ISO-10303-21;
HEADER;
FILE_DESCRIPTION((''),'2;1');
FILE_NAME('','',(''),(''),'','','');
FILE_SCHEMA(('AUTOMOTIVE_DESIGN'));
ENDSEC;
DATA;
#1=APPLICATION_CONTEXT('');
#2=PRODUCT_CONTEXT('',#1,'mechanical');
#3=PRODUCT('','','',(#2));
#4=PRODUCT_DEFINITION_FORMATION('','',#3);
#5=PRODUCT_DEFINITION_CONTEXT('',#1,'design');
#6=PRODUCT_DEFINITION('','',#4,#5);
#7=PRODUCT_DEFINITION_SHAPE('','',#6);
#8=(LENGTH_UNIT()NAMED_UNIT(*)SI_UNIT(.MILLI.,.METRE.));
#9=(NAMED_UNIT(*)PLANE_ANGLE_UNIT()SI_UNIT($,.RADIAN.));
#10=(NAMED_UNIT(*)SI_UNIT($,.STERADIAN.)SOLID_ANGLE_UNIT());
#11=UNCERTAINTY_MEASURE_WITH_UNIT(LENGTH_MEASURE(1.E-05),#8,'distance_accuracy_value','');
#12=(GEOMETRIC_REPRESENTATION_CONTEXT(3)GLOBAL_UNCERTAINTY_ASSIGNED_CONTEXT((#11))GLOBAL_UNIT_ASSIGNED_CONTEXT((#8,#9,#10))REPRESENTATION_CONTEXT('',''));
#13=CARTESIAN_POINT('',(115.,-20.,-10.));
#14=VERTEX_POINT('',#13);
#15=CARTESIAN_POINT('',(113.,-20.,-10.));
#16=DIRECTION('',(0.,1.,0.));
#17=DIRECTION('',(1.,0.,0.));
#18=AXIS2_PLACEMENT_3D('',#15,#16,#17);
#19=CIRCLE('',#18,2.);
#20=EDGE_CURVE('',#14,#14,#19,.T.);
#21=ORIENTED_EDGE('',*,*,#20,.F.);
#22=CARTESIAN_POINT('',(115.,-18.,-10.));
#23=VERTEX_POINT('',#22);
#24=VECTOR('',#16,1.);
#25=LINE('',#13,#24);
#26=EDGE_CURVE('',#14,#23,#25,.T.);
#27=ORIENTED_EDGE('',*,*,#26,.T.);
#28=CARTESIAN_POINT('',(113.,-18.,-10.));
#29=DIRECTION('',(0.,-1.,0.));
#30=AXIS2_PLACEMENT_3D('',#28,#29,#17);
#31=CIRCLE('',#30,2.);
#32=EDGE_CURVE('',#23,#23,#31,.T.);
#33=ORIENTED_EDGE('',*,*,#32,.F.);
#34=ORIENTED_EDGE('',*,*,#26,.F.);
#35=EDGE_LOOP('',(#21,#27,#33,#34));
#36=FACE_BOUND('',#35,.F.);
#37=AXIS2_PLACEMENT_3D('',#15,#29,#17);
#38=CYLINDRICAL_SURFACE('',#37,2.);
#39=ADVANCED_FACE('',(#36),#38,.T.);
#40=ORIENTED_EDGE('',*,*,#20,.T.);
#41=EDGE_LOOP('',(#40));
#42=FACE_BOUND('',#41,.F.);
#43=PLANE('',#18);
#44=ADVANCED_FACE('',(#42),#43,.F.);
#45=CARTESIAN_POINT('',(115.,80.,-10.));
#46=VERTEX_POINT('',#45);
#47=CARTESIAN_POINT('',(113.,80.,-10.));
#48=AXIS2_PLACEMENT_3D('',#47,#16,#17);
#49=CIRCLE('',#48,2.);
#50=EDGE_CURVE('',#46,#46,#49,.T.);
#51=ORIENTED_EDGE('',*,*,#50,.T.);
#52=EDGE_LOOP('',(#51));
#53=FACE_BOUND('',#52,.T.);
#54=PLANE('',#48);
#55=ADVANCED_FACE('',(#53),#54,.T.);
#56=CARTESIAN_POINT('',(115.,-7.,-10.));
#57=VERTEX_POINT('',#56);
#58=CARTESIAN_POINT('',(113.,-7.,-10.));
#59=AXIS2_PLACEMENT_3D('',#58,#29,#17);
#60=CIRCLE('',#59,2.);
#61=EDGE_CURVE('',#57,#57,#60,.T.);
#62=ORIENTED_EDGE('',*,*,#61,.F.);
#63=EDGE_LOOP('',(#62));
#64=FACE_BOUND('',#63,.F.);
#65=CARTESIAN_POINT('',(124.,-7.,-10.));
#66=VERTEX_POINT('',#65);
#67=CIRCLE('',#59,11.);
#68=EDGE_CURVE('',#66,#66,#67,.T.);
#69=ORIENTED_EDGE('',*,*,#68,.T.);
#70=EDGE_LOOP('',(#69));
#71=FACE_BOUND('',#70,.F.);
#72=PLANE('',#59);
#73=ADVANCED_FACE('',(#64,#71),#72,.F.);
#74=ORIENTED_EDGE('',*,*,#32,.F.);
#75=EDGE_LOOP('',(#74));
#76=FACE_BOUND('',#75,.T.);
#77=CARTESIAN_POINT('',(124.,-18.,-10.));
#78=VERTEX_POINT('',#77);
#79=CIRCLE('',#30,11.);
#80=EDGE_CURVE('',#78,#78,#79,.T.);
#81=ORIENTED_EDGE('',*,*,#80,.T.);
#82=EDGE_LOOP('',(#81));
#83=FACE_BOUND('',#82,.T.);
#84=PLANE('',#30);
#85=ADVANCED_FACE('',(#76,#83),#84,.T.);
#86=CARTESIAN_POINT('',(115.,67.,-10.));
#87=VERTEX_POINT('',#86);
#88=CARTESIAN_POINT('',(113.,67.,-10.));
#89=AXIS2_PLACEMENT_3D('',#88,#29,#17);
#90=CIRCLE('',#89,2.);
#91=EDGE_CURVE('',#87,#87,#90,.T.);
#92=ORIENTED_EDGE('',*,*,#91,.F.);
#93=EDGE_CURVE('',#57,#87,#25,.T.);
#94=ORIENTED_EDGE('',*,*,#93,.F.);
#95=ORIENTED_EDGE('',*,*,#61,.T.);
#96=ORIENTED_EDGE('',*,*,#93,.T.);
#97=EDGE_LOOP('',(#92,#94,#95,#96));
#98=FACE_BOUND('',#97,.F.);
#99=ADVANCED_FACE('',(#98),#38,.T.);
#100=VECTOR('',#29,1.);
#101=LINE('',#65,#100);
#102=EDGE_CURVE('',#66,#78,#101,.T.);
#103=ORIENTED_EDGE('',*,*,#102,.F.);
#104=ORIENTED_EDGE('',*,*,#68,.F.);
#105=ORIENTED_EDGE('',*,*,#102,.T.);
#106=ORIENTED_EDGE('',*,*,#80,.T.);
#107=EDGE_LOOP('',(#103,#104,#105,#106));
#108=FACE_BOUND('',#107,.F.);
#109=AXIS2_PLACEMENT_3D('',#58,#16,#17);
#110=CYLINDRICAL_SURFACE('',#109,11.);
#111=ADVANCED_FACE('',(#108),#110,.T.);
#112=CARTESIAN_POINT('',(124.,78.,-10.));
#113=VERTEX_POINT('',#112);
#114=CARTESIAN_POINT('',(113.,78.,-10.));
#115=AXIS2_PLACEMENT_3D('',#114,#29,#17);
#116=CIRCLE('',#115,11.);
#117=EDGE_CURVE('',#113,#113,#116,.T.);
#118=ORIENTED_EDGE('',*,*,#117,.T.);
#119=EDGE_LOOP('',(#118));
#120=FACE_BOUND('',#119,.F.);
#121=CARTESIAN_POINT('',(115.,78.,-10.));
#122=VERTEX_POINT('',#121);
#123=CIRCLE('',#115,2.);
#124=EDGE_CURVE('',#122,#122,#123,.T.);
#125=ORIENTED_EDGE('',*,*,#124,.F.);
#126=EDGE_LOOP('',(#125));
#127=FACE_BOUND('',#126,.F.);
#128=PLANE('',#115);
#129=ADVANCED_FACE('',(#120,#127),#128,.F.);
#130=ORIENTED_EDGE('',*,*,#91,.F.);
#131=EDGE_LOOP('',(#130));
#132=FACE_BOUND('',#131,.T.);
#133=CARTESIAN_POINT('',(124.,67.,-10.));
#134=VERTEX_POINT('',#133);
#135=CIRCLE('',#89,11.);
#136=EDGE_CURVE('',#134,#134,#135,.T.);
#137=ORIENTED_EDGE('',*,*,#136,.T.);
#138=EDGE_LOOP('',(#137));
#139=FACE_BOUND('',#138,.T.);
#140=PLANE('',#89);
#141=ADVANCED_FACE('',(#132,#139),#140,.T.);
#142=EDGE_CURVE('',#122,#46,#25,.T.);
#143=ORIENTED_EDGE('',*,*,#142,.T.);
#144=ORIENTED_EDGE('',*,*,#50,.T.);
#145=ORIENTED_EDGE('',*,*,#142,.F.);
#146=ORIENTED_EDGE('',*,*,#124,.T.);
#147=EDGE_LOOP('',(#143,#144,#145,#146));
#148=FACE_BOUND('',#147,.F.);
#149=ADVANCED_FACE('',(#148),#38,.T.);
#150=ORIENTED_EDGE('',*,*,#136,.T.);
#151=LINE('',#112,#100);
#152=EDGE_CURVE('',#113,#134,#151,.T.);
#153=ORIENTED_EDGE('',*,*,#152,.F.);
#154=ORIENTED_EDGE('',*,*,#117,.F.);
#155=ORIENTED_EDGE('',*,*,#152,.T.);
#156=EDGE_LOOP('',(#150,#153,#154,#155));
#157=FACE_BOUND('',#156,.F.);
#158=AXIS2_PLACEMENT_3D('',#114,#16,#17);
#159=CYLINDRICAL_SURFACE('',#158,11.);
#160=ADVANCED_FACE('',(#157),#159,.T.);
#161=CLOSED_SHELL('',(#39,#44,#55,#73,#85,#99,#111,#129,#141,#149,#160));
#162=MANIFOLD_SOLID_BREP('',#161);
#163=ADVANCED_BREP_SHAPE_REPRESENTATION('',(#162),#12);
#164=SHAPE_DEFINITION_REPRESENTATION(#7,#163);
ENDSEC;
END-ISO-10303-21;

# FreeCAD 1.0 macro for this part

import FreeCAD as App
import Part
import Sketcher

V = App.Vector

doc = App.newDocument("Part")
params = doc.addObject("Spreadsheet::Sheet", "Params")
for row, (alias, value) in enumerate([
    ("sketch1_diameter", "22 mm"),
    ("pad1_length", "11 mm"),
    ("sketch2_diameter", "22 mm"),
    ("pad2_length", "11 mm"),
    ("sketch3_diameter", "4 mm"),
    ("pad3_length", "100 mm"),
], start=1):
    params.set(f"A{row}", alias)
    params.set(f"B{row}", "=" + value)
    params.setAlias(f"B{row}", alias)

body = doc.addObject("PartDesign::Body", "Body")

# Sketch on XY plane
sketch1 = body.newObject("Sketcher::SketchObject", "Sketch")
sketch1.AttachmentSupport = (doc.getObject("XY_Plane"), [""])
sketch1.MapMode = "FlatFace"
sketch1.addGeometry(Part.Circle(V(0, 0, 0), V(0, 0, 1), 11), False)
sketch1.addConstraint(Sketcher.Constraint("Coincident", 0, 3, -1, 1))
sketch1.addConstraint(Sketcher.Constraint("Diameter", 0, 22.0))
sketch1.setExpression("Constraints[1]", "Params.sketch1_diameter")
pad1 = body.newObject("PartDesign::Pad", "Pad")
pad1.Profile = sketch1
pad1.setExpression("Length", "Params.pad1_length")
body2 = doc.addObject("PartDesign::Body", "Body001")
doc.recompute()

body.Placement = App.Placement(V(0, 0, 0), App.Rotation(V(1, 0, 0), 90))
boolean = body2.newObject("PartDesign::Boolean", "Boolean")
boolean.Type = "Fuse"
boolean.addObjects([body])
body3 = doc.addObject("PartDesign::Body", "Body002")
doc.recompute()

body2.Placement = App.Placement(V(20, 78, 14), App.Rotation(V(0, 0, 1), 0))
boolean2 = body3.newObject("PartDesign::Boolean", "Boolean001")
boolean2.Type = "Fuse"
boolean2.addObjects([body2])
body4 = doc.addObject("PartDesign::Body", "Body003")

# Sketch on XY plane
sketch2 = body4.newObject("Sketcher::SketchObject", "Sketch001")
sketch2.AttachmentSupport = (doc.getObject("XY_Plane003"), [""])
sketch2.MapMode = "FlatFace"
sketch2.addGeometry(Part.Circle(V(0, 0, 0), V(0, 0, 1), 11), False)
sketch2.addConstraint(Sketcher.Constraint("Coincident", 0, 3, -1, 1))
sketch2.addConstraint(Sketcher.Constraint("Diameter", 0, 22.0))
sketch2.setExpression("Constraints[1]", "Params.sketch2_diameter")
pad2 = body4.newObject("PartDesign::Pad", "Pad001")
pad2.Profile = sketch2
pad2.setExpression("Length", "Params.pad2_length")
body5 = doc.addObject("PartDesign::Body", "Body004")
doc.recompute()

body4.Placement = App.Placement(V(0, 0, 0), App.Rotation(V(1, 0, 0), 90))
boolean3 = body5.newObject("PartDesign::Boolean", "Boolean002")
boolean3.Type = "Fuse"
boolean3.addObjects([body4])
body6 = doc.addObject("PartDesign::Body", "Body005")
doc.recompute()

body5.Placement = App.Placement(V(20, -7, 14), App.Rotation(V(0, 0, 1), 0))
boolean4 = body6.newObject("PartDesign::Boolean", "Boolean003")
boolean4.Type = "Fuse"
boolean4.addObjects([body5])
body7 = doc.addObject("PartDesign::Body", "Body006")

# Sketch on XY plane
sketch3 = body7.newObject("Sketcher::SketchObject", "Sketch002")
sketch3.AttachmentSupport = (doc.getObject("XY_Plane006"), [""])
sketch3.MapMode = "FlatFace"
sketch3.addGeometry(Part.Circle(V(0, 0, 0), V(0, 0, 1), 2), False)
sketch3.addConstraint(Sketcher.Constraint("Coincident", 0, 3, -1, 1))
sketch3.addConstraint(Sketcher.Constraint("Diameter", 0, 4.0))
sketch3.setExpression("Constraints[1]", "Params.sketch3_diameter")
pad3 = body7.newObject("PartDesign::Pad", "Pad002")
pad3.Profile = sketch3
pad3.setExpression("Length", "Params.pad3_length")
body8 = doc.addObject("PartDesign::Body", "Body007")
doc.recompute()

body7.Placement = App.Placement(V(0, 0, 0), App.Rotation(V(1, 0, 0), 270))
boolean5 = body8.newObject("PartDesign::Boolean", "Boolean004")
boolean5.Type = "Fuse"
boolean5.addObjects([body7])
body9 = doc.addObject("PartDesign::Body", "Body008")
doc.recompute()

body8.Placement = App.Placement(V(20, -20, 14), App.Rotation(V(0, 0, 1), 0))
boolean6 = body9.newObject("PartDesign::Boolean", "Boolean005")
boolean6.Type = "Fuse"
boolean6.addObjects([body8])
doc.recompute()

boolean7 = body9.newObject("PartDesign::Boolean", "Boolean006")
boolean7.Type = "Fuse"
boolean7.addObjects([body3])
doc.recompute()

boolean8 = body9.newObject("PartDesign::Boolean", "Boolean007")
boolean8.Type = "Fuse"
boolean8.addObjects([body6])
body10 = doc.addObject("PartDesign::Body", "Body009")
doc.recompute()

body9.Placement = App.Placement(V(93, 0, -24), App.Rotation(V(0, 0, 1), 0))
boolean9 = body10.newObject("PartDesign::Boolean", "Boolean008")
boolean9.Type = "Fuse"
boolean9.addObjects([body9])

doc.recompute()
